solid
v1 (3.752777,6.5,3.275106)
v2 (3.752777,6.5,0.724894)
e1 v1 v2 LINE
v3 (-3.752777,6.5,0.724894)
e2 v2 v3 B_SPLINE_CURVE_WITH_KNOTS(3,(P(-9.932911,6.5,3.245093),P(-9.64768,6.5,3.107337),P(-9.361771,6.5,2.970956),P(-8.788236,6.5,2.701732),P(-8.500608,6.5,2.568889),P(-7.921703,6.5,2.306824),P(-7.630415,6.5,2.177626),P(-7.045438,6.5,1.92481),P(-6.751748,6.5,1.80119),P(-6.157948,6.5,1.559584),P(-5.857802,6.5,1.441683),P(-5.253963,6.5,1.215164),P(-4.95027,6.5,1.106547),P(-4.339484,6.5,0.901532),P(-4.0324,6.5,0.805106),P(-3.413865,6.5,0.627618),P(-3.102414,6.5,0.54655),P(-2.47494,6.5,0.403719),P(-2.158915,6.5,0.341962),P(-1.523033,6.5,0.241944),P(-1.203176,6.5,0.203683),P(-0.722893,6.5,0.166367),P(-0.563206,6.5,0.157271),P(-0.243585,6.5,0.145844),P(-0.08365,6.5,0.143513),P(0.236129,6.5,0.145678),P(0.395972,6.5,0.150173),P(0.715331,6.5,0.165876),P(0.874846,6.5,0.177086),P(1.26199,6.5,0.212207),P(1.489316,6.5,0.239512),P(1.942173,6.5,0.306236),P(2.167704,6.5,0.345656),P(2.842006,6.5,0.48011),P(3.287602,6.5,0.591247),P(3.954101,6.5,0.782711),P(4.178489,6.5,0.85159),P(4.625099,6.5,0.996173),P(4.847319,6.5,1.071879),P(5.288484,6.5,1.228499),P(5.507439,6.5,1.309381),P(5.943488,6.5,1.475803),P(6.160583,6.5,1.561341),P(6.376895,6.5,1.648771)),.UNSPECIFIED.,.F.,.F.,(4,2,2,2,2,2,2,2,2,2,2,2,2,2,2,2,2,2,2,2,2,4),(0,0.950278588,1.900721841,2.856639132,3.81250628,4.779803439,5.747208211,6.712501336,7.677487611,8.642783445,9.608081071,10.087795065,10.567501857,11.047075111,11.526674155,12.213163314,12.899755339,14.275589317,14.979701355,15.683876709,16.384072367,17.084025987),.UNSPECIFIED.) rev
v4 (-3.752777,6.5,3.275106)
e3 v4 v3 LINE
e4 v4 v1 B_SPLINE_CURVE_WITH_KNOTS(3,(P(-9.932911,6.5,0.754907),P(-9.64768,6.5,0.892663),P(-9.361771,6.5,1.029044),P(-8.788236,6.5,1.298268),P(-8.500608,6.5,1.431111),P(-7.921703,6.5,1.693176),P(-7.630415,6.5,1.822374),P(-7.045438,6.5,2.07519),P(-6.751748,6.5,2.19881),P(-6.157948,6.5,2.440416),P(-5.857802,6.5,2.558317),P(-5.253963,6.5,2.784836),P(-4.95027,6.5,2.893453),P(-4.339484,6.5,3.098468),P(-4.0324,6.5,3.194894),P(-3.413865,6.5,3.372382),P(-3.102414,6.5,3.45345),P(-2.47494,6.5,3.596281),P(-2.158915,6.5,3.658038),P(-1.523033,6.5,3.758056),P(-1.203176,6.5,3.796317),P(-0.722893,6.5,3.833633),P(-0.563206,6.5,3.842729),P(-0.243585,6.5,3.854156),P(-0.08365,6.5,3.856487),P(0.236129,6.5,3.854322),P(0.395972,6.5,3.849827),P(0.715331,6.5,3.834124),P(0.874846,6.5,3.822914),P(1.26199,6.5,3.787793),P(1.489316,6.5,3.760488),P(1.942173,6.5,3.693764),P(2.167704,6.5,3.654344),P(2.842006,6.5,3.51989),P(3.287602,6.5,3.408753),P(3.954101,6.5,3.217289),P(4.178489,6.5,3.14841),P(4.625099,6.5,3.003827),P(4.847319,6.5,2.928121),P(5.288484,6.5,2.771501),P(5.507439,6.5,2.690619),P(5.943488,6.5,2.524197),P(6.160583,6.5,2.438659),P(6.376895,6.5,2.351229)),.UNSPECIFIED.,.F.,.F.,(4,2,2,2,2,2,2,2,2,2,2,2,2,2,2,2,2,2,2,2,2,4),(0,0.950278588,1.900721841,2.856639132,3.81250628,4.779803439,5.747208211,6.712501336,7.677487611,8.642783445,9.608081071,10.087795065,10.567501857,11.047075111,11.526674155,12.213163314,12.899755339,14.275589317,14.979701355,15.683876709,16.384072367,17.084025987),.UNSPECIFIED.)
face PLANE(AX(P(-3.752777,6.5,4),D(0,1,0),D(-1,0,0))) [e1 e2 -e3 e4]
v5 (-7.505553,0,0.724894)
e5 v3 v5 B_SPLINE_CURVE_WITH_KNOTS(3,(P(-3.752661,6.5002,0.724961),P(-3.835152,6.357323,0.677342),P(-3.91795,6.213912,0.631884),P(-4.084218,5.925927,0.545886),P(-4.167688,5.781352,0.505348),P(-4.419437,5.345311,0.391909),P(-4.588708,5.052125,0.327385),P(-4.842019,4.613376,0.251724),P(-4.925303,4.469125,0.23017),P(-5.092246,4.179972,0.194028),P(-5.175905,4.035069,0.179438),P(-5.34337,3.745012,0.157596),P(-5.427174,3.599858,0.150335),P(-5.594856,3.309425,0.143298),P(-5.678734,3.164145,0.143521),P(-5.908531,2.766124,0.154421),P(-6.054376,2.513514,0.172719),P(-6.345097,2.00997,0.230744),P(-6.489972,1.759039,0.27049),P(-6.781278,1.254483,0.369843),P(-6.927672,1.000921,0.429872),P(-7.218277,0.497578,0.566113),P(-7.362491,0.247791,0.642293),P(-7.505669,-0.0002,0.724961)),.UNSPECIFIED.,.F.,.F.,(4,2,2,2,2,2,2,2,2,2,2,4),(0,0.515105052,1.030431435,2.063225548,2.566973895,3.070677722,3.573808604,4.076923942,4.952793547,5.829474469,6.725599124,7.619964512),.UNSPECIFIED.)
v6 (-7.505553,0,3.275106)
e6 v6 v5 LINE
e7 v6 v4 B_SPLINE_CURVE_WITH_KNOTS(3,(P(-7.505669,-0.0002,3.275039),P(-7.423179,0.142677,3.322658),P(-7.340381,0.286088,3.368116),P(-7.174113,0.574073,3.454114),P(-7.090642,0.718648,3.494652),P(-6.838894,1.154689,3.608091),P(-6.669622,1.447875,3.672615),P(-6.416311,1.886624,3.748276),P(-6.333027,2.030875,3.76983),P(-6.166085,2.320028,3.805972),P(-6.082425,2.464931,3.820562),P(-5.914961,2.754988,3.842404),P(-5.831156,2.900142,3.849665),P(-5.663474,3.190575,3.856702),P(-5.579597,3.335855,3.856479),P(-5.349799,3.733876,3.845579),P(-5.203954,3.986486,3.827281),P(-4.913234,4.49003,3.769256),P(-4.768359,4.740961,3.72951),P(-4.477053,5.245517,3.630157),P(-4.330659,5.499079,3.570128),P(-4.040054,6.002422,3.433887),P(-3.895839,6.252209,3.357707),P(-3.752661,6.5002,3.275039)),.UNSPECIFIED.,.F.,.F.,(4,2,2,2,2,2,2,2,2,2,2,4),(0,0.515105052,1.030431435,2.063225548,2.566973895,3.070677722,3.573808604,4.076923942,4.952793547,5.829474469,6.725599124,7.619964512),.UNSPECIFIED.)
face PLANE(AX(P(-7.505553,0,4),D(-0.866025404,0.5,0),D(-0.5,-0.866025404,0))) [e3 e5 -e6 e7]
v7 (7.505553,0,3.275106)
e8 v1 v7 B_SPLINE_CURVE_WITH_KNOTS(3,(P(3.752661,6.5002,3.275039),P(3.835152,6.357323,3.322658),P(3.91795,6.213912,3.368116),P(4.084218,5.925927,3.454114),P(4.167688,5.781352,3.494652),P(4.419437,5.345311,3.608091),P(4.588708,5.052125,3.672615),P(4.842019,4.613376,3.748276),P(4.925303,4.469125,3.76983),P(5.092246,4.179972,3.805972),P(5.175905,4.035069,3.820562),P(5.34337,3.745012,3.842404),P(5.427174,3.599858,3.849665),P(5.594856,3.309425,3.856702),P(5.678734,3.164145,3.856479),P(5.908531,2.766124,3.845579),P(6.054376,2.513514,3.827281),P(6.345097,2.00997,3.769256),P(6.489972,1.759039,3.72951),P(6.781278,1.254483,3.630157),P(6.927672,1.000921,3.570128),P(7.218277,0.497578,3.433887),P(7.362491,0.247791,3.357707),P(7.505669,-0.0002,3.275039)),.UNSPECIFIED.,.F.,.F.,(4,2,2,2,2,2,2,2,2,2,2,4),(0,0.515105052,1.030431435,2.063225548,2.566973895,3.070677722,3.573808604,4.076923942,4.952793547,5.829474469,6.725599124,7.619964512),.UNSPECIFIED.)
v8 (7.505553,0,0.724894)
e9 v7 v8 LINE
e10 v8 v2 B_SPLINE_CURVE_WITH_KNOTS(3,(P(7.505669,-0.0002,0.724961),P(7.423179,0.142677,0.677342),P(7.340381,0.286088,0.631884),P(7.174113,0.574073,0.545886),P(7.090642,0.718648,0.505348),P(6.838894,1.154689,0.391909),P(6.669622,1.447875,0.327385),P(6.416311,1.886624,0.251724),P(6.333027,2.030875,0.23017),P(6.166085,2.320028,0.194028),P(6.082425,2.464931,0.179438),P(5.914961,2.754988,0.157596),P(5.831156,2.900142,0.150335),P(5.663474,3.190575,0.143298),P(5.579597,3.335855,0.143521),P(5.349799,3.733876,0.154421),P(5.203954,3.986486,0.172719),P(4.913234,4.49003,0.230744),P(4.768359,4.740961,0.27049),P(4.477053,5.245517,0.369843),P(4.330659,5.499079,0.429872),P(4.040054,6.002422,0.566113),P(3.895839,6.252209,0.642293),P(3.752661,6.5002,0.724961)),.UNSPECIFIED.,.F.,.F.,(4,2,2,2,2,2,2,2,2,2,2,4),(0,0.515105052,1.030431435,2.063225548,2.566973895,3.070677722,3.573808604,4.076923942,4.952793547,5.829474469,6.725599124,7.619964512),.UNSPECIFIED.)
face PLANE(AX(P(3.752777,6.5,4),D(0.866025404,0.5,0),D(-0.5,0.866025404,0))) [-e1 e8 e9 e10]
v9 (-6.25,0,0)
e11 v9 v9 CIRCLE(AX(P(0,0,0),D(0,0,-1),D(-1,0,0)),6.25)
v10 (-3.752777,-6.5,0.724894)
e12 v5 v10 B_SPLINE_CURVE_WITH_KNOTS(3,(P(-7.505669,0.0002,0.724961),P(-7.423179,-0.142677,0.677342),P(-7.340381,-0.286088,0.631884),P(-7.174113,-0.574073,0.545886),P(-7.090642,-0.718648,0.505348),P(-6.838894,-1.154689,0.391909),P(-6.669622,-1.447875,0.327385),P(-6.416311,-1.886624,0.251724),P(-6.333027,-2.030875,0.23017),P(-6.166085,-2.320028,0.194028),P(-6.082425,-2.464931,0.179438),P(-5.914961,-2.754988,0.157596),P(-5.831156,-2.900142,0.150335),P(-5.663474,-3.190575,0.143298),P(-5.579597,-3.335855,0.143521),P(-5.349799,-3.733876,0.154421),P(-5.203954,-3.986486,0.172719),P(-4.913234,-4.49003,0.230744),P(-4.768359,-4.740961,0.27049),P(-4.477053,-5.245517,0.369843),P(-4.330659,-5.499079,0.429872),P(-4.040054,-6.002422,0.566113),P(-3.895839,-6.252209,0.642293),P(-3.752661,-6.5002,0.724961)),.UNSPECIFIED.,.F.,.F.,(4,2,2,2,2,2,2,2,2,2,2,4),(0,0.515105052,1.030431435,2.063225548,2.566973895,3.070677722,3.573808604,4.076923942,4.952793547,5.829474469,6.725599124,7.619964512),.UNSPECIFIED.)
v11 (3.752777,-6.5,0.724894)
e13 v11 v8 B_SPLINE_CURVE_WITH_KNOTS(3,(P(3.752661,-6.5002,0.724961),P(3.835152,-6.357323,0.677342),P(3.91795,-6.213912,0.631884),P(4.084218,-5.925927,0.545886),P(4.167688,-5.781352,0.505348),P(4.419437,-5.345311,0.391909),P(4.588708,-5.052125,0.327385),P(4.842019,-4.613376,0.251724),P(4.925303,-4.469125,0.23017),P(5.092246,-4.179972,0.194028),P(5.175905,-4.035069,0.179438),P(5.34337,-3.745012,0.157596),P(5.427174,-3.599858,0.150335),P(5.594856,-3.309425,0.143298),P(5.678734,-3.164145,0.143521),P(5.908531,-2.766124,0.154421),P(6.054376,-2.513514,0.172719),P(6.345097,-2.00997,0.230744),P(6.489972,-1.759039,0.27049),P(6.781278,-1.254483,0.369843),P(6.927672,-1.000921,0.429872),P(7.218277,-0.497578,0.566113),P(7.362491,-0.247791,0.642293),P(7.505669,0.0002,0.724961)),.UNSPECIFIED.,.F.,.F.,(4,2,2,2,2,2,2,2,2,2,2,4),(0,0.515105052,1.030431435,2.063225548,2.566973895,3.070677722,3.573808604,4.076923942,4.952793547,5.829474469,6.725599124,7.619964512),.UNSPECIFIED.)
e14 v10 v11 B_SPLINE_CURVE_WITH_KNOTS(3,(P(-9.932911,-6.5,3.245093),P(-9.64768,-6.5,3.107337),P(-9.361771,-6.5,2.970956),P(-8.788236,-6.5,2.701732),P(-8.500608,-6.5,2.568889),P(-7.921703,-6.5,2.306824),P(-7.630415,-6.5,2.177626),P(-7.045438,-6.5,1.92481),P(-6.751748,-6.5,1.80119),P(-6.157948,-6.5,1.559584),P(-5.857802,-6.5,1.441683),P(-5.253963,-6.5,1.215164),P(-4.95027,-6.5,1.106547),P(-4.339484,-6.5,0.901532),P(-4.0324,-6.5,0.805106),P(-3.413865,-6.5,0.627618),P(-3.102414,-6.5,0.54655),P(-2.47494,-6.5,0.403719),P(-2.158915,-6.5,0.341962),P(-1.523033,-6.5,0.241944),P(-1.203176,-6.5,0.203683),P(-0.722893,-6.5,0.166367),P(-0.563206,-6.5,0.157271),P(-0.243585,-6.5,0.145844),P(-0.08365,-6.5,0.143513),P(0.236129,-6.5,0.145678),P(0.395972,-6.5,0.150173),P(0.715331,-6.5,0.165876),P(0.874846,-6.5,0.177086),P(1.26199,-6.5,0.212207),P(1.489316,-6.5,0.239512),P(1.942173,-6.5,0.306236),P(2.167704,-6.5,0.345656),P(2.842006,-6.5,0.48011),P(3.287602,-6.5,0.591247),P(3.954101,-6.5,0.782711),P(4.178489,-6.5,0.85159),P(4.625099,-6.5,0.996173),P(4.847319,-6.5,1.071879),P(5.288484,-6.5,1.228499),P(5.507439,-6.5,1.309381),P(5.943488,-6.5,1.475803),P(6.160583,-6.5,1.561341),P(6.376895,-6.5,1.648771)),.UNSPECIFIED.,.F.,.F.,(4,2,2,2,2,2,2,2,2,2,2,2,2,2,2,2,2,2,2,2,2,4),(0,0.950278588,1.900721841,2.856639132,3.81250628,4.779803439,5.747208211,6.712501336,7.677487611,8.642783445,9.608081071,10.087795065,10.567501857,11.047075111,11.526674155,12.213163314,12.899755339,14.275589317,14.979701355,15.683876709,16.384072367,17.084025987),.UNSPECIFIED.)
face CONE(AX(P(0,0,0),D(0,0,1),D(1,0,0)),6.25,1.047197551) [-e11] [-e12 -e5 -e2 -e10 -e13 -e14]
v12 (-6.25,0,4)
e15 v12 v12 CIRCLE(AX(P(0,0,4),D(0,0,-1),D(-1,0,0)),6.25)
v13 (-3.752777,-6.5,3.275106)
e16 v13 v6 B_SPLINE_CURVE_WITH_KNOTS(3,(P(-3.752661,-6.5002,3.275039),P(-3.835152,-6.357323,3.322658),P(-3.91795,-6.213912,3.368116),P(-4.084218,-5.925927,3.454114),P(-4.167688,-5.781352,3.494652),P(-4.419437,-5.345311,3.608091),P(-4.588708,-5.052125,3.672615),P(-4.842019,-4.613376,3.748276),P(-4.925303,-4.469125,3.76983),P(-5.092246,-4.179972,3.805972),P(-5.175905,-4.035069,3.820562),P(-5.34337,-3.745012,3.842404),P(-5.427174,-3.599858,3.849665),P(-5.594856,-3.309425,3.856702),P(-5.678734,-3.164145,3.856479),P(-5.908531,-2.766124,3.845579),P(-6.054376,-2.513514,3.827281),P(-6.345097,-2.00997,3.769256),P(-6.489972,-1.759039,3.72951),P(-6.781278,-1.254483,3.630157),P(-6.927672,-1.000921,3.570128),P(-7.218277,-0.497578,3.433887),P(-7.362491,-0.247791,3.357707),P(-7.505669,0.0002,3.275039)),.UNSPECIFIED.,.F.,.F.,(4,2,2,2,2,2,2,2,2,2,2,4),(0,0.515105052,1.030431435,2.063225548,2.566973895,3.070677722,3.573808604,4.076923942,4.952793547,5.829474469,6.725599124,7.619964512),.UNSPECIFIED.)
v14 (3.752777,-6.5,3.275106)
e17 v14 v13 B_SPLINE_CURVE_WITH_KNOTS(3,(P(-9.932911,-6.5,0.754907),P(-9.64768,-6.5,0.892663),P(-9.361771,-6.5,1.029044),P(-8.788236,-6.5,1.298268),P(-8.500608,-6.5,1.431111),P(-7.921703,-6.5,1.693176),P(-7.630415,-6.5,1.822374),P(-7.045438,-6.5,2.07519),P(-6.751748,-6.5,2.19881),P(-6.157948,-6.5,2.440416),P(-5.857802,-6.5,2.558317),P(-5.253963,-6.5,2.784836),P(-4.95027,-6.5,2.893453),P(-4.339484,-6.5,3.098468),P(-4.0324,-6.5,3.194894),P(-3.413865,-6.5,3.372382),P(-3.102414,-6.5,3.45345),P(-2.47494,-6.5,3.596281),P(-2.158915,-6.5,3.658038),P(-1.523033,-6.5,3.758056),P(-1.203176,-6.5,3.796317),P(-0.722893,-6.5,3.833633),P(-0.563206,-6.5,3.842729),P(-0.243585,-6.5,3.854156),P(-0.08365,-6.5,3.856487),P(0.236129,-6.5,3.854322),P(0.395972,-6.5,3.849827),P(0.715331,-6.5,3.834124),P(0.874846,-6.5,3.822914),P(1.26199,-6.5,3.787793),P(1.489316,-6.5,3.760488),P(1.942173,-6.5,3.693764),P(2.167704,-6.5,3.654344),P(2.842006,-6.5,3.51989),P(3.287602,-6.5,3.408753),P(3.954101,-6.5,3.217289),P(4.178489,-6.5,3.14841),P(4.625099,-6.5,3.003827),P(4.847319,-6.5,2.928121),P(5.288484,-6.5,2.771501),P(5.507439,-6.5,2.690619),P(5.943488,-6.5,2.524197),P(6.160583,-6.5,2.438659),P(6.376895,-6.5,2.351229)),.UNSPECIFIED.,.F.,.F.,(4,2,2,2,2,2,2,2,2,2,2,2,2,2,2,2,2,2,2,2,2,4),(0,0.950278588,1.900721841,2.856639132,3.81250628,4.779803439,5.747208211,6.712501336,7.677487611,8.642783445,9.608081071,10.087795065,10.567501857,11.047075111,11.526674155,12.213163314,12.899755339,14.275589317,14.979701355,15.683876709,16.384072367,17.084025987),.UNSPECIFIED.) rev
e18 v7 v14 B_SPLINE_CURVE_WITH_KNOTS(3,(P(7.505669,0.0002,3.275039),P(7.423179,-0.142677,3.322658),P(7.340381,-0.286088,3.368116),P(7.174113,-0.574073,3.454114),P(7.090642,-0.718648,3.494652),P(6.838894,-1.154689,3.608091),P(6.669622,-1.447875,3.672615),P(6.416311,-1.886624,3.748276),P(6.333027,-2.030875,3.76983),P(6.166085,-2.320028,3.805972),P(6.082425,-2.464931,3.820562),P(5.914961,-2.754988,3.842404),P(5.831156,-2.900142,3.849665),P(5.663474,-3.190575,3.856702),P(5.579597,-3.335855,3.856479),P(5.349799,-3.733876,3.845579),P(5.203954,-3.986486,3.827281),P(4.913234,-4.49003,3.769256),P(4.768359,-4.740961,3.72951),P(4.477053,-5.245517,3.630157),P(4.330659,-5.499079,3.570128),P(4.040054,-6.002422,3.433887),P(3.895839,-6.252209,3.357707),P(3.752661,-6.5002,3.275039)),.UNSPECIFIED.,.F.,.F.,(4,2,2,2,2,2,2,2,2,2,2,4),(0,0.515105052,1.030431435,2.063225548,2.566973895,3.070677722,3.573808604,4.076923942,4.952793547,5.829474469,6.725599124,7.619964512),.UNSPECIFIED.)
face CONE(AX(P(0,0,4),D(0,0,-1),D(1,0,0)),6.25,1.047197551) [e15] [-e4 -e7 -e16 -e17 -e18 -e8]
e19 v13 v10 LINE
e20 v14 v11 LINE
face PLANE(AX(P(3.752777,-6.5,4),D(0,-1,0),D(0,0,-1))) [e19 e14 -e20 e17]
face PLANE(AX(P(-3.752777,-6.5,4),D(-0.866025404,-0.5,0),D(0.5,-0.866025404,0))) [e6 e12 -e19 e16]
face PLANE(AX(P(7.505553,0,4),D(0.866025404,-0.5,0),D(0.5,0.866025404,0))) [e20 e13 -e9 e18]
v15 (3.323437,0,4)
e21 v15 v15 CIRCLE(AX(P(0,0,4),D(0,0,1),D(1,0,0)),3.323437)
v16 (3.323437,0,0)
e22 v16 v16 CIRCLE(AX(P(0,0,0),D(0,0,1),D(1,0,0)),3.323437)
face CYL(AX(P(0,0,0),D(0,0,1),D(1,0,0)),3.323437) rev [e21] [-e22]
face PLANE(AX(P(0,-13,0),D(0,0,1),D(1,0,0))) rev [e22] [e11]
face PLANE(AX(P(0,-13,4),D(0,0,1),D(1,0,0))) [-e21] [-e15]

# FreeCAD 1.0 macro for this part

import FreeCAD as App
import Part
import Sketcher

V = App.Vector
Q = App.Units.Quantity

doc = App.newDocument("Part")
params = doc.addObject("Spreadsheet::Sheet", "Params")
for row, (alias, value) in enumerate([
    ("pad1_length", "4 mm"),
    ("groove_angle", "360 deg"),
], start=1):
    params.set(f"A{row}", alias)
    params.set(f"B{row}", "=" + value)
    params.setAlias(f"B{row}", alias)

body = doc.addObject("PartDesign::Body", "Body")

# Sketch on XY plane
sketch1 = body.newObject("Sketcher::SketchObject", "Sketch")
sketch1.AttachmentSupport = (doc.getObject("XY_Plane"), [""])
sketch1.MapMode = "FlatFace"
sketch1.addGeometry([
    Part.LineSegment(V(-4, 6, 0), V(-8, 0, 0)),  # 0
    Part.LineSegment(V(-8, 0, 0), V(-4, -6, 0)),  # 1
    Part.LineSegment(V(-4, -6, 0), V(4, -6, 0)),  # 2
    Part.LineSegment(V(4, -6, 0), V(8, 0, 0)),  # 3
    Part.LineSegment(V(8, 0, 0), V(4, 6, 0)),  # 4
    Part.LineSegment(V(4, 6, 0), V(-4, 6, 0)),  # 5
], False)
sketch1.addConstraint([
    Sketcher.Constraint("Coincident", 0, 2, 1, 1),
    Sketcher.Constraint("Coincident", 1, 2, 2, 1),
    Sketcher.Constraint("Coincident", 2, 2, 3, 1),
    Sketcher.Constraint("Coincident", 3, 2, 4, 1),
    Sketcher.Constraint("Coincident", 4, 2, 5, 1),
    Sketcher.Constraint("Coincident", 5, 2, 0, 1),
    Sketcher.Constraint("Horizontal", 2),
    Sketcher.Constraint("Horizontal", 5),
    Sketcher.Constraint("Symmetric", 0, 2, 3, 2, -1, 1),
    Sketcher.Constraint("Symmetric", 1, 2, 4, 2, -1, 1),
    Sketcher.Constraint("PointOnObject", 0, 2, -1),
    Sketcher.Constraint("Parallel", 0, 3),
    Sketcher.Constraint("Vertical", 2, 2, 4, 2),
    Sketcher.Constraint("Angle", 0, Q("-120 deg")),
    Sketcher.Constraint("DistanceY", 2, 2, 4, 2, Q("13 mm")),
    Sketcher.Constraint("DistanceX", 2, 1, 2, 2, Q("7.505554 mm")),
])
pad1 = body.newObject("PartDesign::Pad", "Pad")
pad1.Profile = sketch1
pad1.setExpression("Length", "Params.pad1_length")

# Sketch on XY plane
sketch2 = body.newObject("Sketcher::SketchObject", "Sketch001")
sketch2.AttachmentSupport = (doc.getObject("XY_Plane"), [""])
sketch2.MapMode = "FlatFace"
sketch2.AttachmentOffset = App.Placement(V(0, 0, 4), App.Rotation())
sketch2.addGeometry(Part.Circle(V(0, 0, 0), V(0, 0, 1), 3.3), False)
sketch2.addConstraint([
    Sketcher.Constraint("Coincident", 0, 3, -1, 1),
    Sketcher.Constraint("Diameter", 0, Q("6.646875 mm")),
])
pocket1 = body.newObject("PartDesign::Pocket", "Pocket")
pocket1.Profile = sketch2
pocket1.Type = "ThroughAll"

# Sketch on XZ plane
sketch3 = body.newObject("Sketcher::SketchObject", "Sketch002")
sketch3.AttachmentSupport = (doc.getObject("XZ_Plane"), [""])
sketch3.MapMode = "FlatFace"
sketch3.addGeometry([
    Part.LineSegment(V(-6.2, 0, 0), V(-7.5, 0, 0)),
    Part.LineSegment(V(-7.5, 0, 0), V(-7.5, 0.7, 0)),
    Part.LineSegment(V(-7.5, 0.7, 0), V(-6.2, 0, 0)),
], False)
sketch3.addConstraint([
    Sketcher.Constraint("Coincident", 0, 2, 1, 1),
    Sketcher.Constraint("Coincident", 1, 2, 2, 1),
    Sketcher.Constraint("Coincident", 2, 2, 0, 1),
    Sketcher.Constraint("Horizontal", 0),
    Sketcher.Constraint("Vertical", 1),
    Sketcher.Constraint("PointOnObject", 0, 2, -1),
    Sketcher.Constraint("Angle", 2, Q("-30 deg")),
    Sketcher.Constraint("DistanceX", 2, 2, -1, 1, Q("6.25 mm")),
    Sketcher.Constraint("Distance", 2, Q("1.449788 mm")),
])
groove = body.newObject("PartDesign::Groove", "Groove")
groove.Profile = sketch3
groove.ReferenceAxis = (sketch3, ["V_Axis"])
groove.setExpression("Angle", "Params.groove_angle")
doc.recompute()

datumplane = body.newObject("PartDesign::Plane", "DatumPlane")
datumplane.AttachmentSupport = (doc.getObject("XY_Plane"), [""])
datumplane.MapMode = "FlatFace"
datumplane.AttachmentOffset = App.Placement(V(0, 0, 2), App.Rotation())
mirrored = body.newObject("PartDesign::Mirrored", "Mirrored")
mirrored.Originals = [groove]
mirrored.MirrorPlane = (datumplane, [""])
body.Tip = mirrored

doc.recompute()
